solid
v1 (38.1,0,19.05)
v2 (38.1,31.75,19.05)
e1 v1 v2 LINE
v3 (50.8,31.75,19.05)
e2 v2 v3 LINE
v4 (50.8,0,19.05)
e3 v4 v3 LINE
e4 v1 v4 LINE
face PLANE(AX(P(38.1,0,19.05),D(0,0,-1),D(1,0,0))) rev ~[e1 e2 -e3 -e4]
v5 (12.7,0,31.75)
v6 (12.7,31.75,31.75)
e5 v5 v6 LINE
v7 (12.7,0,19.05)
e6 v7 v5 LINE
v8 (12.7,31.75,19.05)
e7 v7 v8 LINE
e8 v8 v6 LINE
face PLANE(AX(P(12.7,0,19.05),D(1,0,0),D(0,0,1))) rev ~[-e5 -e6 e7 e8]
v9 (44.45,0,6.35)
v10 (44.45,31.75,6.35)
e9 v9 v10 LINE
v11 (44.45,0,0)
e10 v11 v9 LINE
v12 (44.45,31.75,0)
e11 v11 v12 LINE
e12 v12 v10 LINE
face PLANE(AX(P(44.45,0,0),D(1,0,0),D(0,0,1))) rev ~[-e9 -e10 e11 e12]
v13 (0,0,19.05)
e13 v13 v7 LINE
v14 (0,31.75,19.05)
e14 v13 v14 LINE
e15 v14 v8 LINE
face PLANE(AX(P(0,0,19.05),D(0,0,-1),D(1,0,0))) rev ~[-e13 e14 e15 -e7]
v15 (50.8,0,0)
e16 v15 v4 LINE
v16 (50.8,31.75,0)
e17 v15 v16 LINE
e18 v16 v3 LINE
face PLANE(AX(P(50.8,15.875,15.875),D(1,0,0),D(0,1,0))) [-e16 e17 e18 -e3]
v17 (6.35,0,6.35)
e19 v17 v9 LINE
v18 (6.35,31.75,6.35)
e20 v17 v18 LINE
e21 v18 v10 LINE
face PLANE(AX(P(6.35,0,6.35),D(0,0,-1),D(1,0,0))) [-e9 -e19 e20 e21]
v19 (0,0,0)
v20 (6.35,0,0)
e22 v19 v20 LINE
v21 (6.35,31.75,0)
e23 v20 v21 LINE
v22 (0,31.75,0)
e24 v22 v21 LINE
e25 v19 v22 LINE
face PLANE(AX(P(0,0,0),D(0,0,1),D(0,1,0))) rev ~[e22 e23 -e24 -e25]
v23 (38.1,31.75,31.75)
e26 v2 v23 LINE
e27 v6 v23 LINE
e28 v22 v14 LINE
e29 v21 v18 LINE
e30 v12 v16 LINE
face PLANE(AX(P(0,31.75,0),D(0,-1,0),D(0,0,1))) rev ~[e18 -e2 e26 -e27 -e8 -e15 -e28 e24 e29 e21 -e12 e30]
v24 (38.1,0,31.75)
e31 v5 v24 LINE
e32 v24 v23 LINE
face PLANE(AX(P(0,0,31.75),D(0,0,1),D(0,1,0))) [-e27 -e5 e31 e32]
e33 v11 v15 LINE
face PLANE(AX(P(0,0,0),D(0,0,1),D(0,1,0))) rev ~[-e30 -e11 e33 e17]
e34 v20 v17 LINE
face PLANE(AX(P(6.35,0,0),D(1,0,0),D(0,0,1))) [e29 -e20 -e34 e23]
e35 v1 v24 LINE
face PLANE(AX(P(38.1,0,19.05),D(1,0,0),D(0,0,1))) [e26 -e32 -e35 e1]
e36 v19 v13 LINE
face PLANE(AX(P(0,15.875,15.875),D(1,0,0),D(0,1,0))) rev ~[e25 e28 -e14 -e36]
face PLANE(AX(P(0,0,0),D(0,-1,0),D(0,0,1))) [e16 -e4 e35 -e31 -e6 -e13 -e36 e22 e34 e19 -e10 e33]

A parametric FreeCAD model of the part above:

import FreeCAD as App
import Part
import Sketcher
Q = App.Units.Quantity


def add_polygon(sketch, points):
    """Adds a closed chain of lines whose ends are joined by coincident constraints."""
    first, n = sketch.GeometryCount, len(points)
    for a, b in zip(points, points[1:] + points[:1]):
        sketch.addGeometry(Part.LineSegment(App.Vector(*a, 0), App.Vector(*b, 0)), False)
    for i in range(n):
        sketch.addConstraint(Sketcher.Constraint("Coincident", first + i, 2, first + (i + 1) % n, 1))

doc = App.newDocument("Part")
body = doc.addObject("PartDesign::Body", "Body")

sketch1 = doc.addObject("Sketcher::SketchObject", "Sketch")
body.addObject(sketch1)
sketch1.AttachmentSupport = (doc.YZ_Plane, [""])
sketch1.MapMode = "FlatFace"
add_polygon(sketch1, [(0, 31.75), (0, 0), (31.75, 0), (31.75, 31.75)])
sketch1.addConstraint(Sketcher.Constraint("Vertical", 0))
sketch1.addConstraint(Sketcher.Constraint("Horizontal", 1))
sketch1.addConstraint(Sketcher.Constraint("Vertical", 2))
sketch1.addConstraint(Sketcher.Constraint("Horizontal", 3))
sketch1.addConstraint(Sketcher.Constraint("Coincident", 0, 2, -1, 1))
sketch1.addConstraint(Sketcher.Constraint("Equal", 3, 0))
sketch1.addConstraint(Sketcher.Constraint("DistanceX", 1, 1, 1, 2, Q("1.25 in")))
pad1 = doc.addObject("PartDesign::Pad", "Pad")
body.addObject(pad1)
pad1.Profile = sketch1
pad1.Length = Q("2 in")

sketch2 = doc.addObject("Sketcher::SketchObject", "Sketch001")
body.addObject(sketch2)
sketch2.AttachmentSupport = (doc.XZ_Plane, [""])
sketch2.MapMode = "FlatFace"
add_polygon(sketch2, [(0, 31.75), (0, 19.05), (12.7, 19.05), (12.7, 31.75)])
add_polygon(sketch2, [(38.1, 31.75), (38.1, 19.05), (50.8, 19.05), (50.8, 31.75)])
add_polygon(sketch2, [(6.35, 6.35), (6.35, 0), (44.45, 0), (44.45, 6.35)])
sketch2.addConstraint(Sketcher.Constraint("Vertical", 0))
sketch2.addConstraint(Sketcher.Constraint("Horizontal", 1))
sketch2.addConstraint(Sketcher.Constraint("Vertical", 2))
sketch2.addConstraint(Sketcher.Constraint("Horizontal", 3))
sketch2.addConstraint(Sketcher.Constraint("Vertical", 4))
sketch2.addConstraint(Sketcher.Constraint("Horizontal", 5))
sketch2.addConstraint(Sketcher.Constraint("Vertical", 6))
sketch2.addConstraint(Sketcher.Constraint("Horizontal", 7))
sketch2.addConstraint(Sketcher.Constraint("Vertical", 8))
sketch2.addConstraint(Sketcher.Constraint("Horizontal", 9))
sketch2.addConstraint(Sketcher.Constraint("Vertical", 10))
sketch2.addConstraint(Sketcher.Constraint("Horizontal", 11))
sketch2.addConstraint(Sketcher.Constraint("PointOnObject", 0, 2, -2))
sketch2.addConstraint(Sketcher.Constraint("PointOnObject", 8, 2, -1))
sketch2.addConstraint(Sketcher.Constraint("Horizontal", 1, 2, 4, 2))
sketch2.addConstraint(Sketcher.Constraint("Horizontal", 3, 2, 6, 2))
sketch2.addConstraint(Sketcher.Constraint("Equal", 3, 5))
sketch2.addConstraint(Sketcher.Constraint("Equal", 7, 0))
sketch2.addConstraint(Sketcher.Constraint("DistanceX", 1, 1, 1, 2, Q("0.5 in")))
sketch2.addConstraint(Sketcher.Constraint("DistanceX", 9, 1, 9, 2, Q("1.5 in")))
sketch2.addConstraint(Sketcher.Constraint("DistanceX", -1, 1, 5, 2, Q("2 in")))
sketch2.addConstraint(Sketcher.Constraint("DistanceY", 10, 2, 6, 2, Q("1 in")))
sketch2.addConstraint(Sketcher.Constraint("DistanceY", 8, 2, 8, 1, Q("0.25 in")))
sketch2.addConstraint(Sketcher.Constraint("DistanceX", -1, 1, 8, 2, Q("0.25 in")))
pocket1 = doc.addObject("PartDesign::Pocket", "Pocket")
body.addObject(pocket1)
pocket1.Profile = sketch2
pocket1.Type = "ThroughAll"

doc.recompute()
